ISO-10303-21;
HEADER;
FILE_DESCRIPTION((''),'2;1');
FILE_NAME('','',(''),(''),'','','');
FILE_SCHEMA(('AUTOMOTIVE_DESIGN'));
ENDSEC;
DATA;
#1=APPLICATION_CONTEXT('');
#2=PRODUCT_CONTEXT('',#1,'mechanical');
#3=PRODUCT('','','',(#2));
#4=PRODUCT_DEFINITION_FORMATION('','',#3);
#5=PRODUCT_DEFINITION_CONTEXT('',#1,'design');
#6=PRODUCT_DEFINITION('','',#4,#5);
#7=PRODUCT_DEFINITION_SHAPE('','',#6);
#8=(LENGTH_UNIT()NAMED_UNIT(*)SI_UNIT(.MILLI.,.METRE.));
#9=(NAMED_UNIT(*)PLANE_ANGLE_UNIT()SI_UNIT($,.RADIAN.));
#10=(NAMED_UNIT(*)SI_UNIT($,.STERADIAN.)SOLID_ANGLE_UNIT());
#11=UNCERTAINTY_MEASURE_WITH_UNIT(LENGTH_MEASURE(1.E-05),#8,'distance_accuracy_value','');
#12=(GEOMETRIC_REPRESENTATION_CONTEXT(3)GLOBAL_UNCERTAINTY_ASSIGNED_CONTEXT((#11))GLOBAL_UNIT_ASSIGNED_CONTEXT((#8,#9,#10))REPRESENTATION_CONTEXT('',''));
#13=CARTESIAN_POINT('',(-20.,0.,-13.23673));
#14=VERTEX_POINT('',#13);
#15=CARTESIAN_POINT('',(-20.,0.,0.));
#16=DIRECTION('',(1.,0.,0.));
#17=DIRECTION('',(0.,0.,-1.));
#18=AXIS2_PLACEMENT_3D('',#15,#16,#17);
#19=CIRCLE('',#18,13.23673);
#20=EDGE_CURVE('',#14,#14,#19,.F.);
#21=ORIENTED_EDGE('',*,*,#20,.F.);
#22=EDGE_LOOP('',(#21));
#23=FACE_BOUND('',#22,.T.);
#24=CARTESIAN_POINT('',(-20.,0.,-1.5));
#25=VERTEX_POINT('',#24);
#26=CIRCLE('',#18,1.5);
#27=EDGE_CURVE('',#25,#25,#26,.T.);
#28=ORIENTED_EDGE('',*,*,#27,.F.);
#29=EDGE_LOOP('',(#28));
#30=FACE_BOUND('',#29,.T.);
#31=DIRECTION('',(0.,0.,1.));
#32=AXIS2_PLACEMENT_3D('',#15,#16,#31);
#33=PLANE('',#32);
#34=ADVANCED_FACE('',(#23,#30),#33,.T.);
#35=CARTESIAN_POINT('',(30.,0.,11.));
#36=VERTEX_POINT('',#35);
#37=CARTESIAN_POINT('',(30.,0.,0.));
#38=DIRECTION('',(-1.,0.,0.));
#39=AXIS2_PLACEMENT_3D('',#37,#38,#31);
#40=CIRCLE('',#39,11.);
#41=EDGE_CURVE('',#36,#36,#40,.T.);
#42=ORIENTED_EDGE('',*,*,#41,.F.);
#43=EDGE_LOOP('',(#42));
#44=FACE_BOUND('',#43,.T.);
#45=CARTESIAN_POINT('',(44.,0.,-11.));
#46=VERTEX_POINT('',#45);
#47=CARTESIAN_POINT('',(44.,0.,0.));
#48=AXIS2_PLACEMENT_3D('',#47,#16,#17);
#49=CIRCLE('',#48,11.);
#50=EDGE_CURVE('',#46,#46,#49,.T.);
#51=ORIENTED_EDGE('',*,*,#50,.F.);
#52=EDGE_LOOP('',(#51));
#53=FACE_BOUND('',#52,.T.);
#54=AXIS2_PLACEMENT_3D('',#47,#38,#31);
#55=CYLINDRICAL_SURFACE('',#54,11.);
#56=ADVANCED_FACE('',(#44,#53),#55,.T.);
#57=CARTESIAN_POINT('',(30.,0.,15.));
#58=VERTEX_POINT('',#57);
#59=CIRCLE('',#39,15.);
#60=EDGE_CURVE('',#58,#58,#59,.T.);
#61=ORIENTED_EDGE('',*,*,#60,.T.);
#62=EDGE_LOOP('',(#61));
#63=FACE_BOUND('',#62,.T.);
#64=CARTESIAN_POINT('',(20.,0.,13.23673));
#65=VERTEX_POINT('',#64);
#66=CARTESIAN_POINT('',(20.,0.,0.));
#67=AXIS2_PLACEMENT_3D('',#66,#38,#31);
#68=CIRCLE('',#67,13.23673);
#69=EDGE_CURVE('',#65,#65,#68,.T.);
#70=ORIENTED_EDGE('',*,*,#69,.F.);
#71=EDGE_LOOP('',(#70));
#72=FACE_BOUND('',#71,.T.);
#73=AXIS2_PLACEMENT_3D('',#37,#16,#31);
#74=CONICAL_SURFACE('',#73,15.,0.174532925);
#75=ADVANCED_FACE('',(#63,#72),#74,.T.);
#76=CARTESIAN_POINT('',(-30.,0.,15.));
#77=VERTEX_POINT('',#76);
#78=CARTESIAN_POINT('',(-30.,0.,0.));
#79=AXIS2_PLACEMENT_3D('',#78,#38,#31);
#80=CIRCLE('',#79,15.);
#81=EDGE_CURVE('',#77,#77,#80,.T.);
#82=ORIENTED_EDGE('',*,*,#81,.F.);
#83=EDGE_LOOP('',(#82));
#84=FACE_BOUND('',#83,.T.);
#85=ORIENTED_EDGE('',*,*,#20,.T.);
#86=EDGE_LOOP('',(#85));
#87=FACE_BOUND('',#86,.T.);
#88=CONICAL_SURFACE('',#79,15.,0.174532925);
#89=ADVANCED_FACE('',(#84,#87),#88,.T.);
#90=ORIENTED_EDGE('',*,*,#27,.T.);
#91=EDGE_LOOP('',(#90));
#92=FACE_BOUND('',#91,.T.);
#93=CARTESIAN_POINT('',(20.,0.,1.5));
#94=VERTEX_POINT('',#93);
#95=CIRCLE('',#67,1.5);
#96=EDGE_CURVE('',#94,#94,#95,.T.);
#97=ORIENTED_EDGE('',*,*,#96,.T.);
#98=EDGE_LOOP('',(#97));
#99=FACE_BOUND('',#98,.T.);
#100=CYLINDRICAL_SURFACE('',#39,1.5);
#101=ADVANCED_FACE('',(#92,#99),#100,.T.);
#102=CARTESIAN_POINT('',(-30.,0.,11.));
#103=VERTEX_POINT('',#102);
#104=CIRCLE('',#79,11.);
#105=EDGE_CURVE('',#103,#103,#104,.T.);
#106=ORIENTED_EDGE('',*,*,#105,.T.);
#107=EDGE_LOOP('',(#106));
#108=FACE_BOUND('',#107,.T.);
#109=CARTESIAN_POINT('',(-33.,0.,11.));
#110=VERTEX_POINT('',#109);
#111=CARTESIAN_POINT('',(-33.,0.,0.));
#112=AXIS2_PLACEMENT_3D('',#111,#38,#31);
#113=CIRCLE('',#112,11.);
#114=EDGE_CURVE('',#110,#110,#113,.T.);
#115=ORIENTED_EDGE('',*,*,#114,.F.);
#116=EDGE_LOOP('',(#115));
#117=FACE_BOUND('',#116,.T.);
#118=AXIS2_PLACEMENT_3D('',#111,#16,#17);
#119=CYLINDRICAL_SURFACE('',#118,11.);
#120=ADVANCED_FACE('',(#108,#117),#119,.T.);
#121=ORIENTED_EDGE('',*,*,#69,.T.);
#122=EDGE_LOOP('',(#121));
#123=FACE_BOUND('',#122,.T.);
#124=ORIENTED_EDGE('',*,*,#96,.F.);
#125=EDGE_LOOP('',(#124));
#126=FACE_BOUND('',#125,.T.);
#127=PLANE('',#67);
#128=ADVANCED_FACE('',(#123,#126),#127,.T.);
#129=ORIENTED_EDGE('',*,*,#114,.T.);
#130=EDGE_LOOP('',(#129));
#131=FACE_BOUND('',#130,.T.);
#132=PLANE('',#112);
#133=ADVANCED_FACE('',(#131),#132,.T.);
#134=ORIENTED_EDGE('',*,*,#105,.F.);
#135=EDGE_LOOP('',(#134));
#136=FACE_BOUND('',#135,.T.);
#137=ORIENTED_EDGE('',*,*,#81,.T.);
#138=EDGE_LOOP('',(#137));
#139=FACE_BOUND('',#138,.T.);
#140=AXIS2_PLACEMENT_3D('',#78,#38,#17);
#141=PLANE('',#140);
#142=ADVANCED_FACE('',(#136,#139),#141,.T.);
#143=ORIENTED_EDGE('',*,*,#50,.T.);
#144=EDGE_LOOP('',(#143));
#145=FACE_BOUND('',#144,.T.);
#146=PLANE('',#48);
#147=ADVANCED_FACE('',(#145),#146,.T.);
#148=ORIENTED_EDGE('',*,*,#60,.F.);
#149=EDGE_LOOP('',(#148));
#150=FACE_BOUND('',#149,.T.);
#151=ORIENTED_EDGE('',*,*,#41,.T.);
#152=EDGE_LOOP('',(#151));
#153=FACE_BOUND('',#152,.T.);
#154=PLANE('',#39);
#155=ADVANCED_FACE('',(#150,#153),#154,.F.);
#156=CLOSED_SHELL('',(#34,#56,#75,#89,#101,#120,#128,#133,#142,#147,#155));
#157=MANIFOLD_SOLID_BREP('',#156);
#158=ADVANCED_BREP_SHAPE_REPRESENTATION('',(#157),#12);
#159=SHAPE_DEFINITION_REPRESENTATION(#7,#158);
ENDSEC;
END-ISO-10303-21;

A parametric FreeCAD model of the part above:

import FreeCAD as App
import Part
import Sketcher
from FreeCAD import Vector

doc = App.newDocument("Part")
body = doc.addObject("PartDesign::Body", "Body")

# Sketch on YZ plane
sketch1 = body.newObject("Sketcher::SketchObject", "Sketch")
sketch1.AttachmentSupport = (doc.getObject("YZ_Plane"), [""])
sketch1.MapMode = "FlatFace"
sketch1.addGeometry(Part.Circle(Vector(0, 0, 0), Vector(0, 0, 1), 1.5), False)
sketch1.addConstraint([
    Sketcher.Constraint("Coincident", 0, 3, -1, 1),
    Sketcher.Constraint("Diameter", 0, 3.0),
])
pad1 = body.newObject("PartDesign::Pad", "Pad")
pad1.Profile = sketch1
pad1.Length = 30

# Sketch on YZ plane
sketch2 = body.newObject("Sketcher::SketchObject", "Sketch001")
sketch2.AttachmentSupport = (doc.getObject("YZ_Plane"), [""])
sketch2.MapMode = "FlatFace"
sketch2.AttachmentOffset = App.Placement(Vector(0, 0, 30), App.Rotation())
sketch2.addGeometry(Part.Circle(Vector(0, 0, 0), Vector(0, 0, 1), 11), False)
sketch2.addConstraint([
    Sketcher.Constraint("Coincident", 0, 3, -1, 1),
    Sketcher.Constraint("Diameter", 0, 22.0),
])
pad2 = body.newObject("PartDesign::Pad", "Pad001")
pad2.Profile = sketch2
pad2.Length = 14

# Sketch on YZ plane
sketch3 = body.newObject("Sketcher::SketchObject", "Sketch002")
sketch3.AttachmentSupport = (doc.getObject("YZ_Plane"), [""])
sketch3.MapMode = "FlatFace"
sketch3.AttachmentOffset = App.Placement(Vector(0, 0, 30), App.Rotation())
sketch3.addGeometry(Part.Circle(Vector(0, 0, 0), Vector(0, 0, 1), 15), False)
sketch3.addConstraint([
    Sketcher.Constraint("Coincident", 0, 3, -1, 1),
    Sketcher.Constraint("Diameter", 0, 30.0),
])
pad3 = body.newObject("PartDesign::Pad", "Pad002")
pad3.Profile = sketch3
pad3.Length = 10
pad3.Reversed = True
pad3.TaperAngle = -10
doc.recompute()

mirrored = body.newObject("PartDesign::Mirrored", "Mirrored")
mirrored.Originals = [pad1, pad3]
mirrored.MirrorPlane = (doc.getObject("YZ_Plane"), [""])
body.Tip = mirrored

# Sketch on YZ plane
sketch4 = body.newObject("Sketcher::SketchObject", "Sketch003")
sketch4.AttachmentSupport = (doc.getObject("YZ_Plane"), [""])
sketch4.MapMode = "FlatFace"
sketch4.AttachmentOffset = App.Placement(Vector(0, 0, -33), App.Rotation())
sketch4.addGeometry(Part.Circle(Vector(0, 0, 0), Vector(0, 0, 1), 11), False)
sketch4.addConstraint([
    Sketcher.Constraint("Coincident", 0, 3, -1, 1),
    Sketcher.Constraint("Diameter", 0, 22.0),
])
pad4 = body.newObject("PartDesign::Pad", "Pad003")
pad4.Profile = sketch4
pad4.Length = 3

doc.recompute()
